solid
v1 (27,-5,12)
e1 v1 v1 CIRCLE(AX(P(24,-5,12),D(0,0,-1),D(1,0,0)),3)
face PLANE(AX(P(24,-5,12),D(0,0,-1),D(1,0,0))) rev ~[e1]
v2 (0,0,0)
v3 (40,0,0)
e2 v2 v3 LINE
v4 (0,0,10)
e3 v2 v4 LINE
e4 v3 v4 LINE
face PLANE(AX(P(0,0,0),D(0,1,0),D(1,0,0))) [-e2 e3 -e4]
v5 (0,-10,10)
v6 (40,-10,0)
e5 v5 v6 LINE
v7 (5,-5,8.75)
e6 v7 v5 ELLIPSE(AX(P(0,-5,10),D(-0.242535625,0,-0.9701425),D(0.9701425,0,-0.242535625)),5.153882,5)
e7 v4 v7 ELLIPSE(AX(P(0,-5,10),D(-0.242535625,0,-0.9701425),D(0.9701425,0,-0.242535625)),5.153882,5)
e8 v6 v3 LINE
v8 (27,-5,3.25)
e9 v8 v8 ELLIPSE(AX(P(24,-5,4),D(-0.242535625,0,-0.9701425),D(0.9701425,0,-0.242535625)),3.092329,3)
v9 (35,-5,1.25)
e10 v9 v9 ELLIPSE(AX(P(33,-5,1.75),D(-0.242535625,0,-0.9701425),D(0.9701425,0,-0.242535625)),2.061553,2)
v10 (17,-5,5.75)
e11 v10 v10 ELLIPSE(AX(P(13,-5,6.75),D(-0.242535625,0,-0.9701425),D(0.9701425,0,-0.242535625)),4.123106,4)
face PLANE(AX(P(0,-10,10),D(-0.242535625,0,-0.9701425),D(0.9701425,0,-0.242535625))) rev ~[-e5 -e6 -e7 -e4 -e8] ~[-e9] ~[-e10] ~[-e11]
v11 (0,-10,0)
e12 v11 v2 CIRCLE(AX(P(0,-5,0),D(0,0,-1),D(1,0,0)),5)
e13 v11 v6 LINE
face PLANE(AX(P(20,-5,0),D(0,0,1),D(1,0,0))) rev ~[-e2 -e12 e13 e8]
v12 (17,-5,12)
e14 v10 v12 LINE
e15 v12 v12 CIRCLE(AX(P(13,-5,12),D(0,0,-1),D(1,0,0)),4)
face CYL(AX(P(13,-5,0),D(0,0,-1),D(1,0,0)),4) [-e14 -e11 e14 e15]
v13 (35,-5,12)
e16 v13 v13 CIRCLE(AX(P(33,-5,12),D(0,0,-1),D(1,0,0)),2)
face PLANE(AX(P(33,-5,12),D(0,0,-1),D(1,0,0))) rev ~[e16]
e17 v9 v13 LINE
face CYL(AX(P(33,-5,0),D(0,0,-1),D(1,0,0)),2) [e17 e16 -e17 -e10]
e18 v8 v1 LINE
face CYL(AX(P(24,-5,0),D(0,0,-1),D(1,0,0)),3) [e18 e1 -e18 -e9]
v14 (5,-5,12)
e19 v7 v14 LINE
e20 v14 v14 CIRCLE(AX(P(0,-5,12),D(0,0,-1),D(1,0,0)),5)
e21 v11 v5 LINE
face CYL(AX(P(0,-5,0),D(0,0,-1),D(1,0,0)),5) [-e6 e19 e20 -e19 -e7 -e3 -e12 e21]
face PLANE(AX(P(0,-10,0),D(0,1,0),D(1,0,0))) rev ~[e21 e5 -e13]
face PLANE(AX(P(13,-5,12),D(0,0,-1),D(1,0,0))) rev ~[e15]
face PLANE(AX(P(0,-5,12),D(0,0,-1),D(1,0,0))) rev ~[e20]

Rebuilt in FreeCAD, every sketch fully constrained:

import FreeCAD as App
import Part
import Sketcher
from FreeCAD import Vector
Q = App.Units.Quantity


def add_polygon(sketch, points):
    """Adds a closed chain of lines whose ends are joined by coincident constraints."""
    first, n = sketch.GeometryCount, len(points)
    for a, b in zip(points, points[1:] + points[:1]):
        sketch.addGeometry(Part.LineSegment(App.Vector(*a, 0), App.Vector(*b, 0)), False)
    for i in range(n):
        sketch.addConstraint(Sketcher.Constraint("Coincident", first + i, 2, first + (i + 1) % n, 1))

doc = App.newDocument("Part")
body = doc.addObject("PartDesign::Body", "Body")

# Sketch on XY plane
sketch1 = body.newObject("Sketcher::SketchObject", "Sketch")
sketch1.AttachmentSupport = (doc.getObject("XY_Plane"), [""])
sketch1.MapMode = "FlatFace"
add_polygon(sketch1, [(0, 0), (0, -10), (40, -10), (40, 0)])  # lines 0-3
sketch1.addConstraint([
    Sketcher.Constraint("Vertical", 0),
    Sketcher.Constraint("Horizontal", 1),
    Sketcher.Constraint("Vertical", 2),
    Sketcher.Constraint("Horizontal", 3),
    Sketcher.Constraint("Coincident", 3, 2, -1, 1),
    Sketcher.Constraint("DistanceX", 1, 1, 1, 2, Q("40 mm")),
    Sketcher.Constraint("DistanceY", 0, 2, 0, 1, Q("10 mm")),
])
pad1 = body.newObject("PartDesign::Pad", "Pad")
pad1.Profile = sketch1
pad1.Length = 10

# Sketch on XZ plane
sketch2 = body.newObject("Sketcher::SketchObject", "Sketch001")
sketch2.AttachmentSupport = (doc.getObject("XZ_Plane"), [""])
sketch2.MapMode = "FlatFace"
sketch2.AttachmentOffset = App.Placement(Vector(0, 0, 10), App.Rotation())
add_polygon(sketch2, [(40, 10), (0, 10), (40, 0)])  # lines 0-2
sketch2.addConstraint([
    Sketcher.Constraint("Horizontal", 0),
    Sketcher.Constraint("Vertical", 2),
    Sketcher.Constraint("PointOnObject", 0, 2, -2),
    Sketcher.Constraint("PointOnObject", 1, 2, -1),
    Sketcher.Constraint("DistanceX", 0, 2, 0, 1, Q("40 mm")),
    Sketcher.Constraint("DistanceY", 2, 1, 2, 2, Q("10 mm")),
])
pocket1 = body.newObject("PartDesign::Pocket", "Pocket")
pocket1.Profile = sketch2
pocket1.Length = 25

# Sketch on XY plane
sketch3 = body.newObject("Sketcher::SketchObject", "Sketch002")
sketch3.AttachmentSupport = (doc.getObject("XY_Plane"), [""])
sketch3.MapMode = "FlatFace"
sketch3.addGeometry([
    Part.Circle(Vector(0, -5, 0), Vector(0, 0, 1), 5),
    Part.Circle(Vector(33, -5, 0), Vector(0, 0, 1), 2),
    Part.Circle(Vector(13, -5, 0), Vector(0, 0, 1), 4),
    Part.Circle(Vector(24, -5, 0), Vector(0, 0, 1), 3),
], False)
sketch3.addConstraint([
    Sketcher.Constraint("PointOnObject", 0, 3, -2),
    Sketcher.Constraint("Horizontal", 0, 3, 1, 3),
    Sketcher.Constraint("Horizontal", 1, 3, 2, 3),
    Sketcher.Constraint("Horizontal", 2, 3, 3, 3),
    Sketcher.Constraint("Diameter", 0, Q("10 mm")),
    Sketcher.Constraint("Diameter", 1, Q("4 mm")),
    Sketcher.Constraint("Diameter", 2, Q("8 mm")),
    Sketcher.Constraint("Diameter", 3, Q("6 mm")),
    Sketcher.Constraint("DistanceY", 0, 3, -1, 1, Q("5 mm")),
    Sketcher.Constraint("DistanceX", -1, 1, 1, 3, Q("33 mm")),
    Sketcher.Constraint("DistanceX", -1, 1, 2, 3, Q("13 mm")),
    Sketcher.Constraint("DistanceX", -1, 1, 3, 3, Q("24 mm")),
])
pad2 = body.newObject("PartDesign::Pad", "Pad001")
pad2.Profile = sketch3
pad2.Length = 12

doc.recompute()
